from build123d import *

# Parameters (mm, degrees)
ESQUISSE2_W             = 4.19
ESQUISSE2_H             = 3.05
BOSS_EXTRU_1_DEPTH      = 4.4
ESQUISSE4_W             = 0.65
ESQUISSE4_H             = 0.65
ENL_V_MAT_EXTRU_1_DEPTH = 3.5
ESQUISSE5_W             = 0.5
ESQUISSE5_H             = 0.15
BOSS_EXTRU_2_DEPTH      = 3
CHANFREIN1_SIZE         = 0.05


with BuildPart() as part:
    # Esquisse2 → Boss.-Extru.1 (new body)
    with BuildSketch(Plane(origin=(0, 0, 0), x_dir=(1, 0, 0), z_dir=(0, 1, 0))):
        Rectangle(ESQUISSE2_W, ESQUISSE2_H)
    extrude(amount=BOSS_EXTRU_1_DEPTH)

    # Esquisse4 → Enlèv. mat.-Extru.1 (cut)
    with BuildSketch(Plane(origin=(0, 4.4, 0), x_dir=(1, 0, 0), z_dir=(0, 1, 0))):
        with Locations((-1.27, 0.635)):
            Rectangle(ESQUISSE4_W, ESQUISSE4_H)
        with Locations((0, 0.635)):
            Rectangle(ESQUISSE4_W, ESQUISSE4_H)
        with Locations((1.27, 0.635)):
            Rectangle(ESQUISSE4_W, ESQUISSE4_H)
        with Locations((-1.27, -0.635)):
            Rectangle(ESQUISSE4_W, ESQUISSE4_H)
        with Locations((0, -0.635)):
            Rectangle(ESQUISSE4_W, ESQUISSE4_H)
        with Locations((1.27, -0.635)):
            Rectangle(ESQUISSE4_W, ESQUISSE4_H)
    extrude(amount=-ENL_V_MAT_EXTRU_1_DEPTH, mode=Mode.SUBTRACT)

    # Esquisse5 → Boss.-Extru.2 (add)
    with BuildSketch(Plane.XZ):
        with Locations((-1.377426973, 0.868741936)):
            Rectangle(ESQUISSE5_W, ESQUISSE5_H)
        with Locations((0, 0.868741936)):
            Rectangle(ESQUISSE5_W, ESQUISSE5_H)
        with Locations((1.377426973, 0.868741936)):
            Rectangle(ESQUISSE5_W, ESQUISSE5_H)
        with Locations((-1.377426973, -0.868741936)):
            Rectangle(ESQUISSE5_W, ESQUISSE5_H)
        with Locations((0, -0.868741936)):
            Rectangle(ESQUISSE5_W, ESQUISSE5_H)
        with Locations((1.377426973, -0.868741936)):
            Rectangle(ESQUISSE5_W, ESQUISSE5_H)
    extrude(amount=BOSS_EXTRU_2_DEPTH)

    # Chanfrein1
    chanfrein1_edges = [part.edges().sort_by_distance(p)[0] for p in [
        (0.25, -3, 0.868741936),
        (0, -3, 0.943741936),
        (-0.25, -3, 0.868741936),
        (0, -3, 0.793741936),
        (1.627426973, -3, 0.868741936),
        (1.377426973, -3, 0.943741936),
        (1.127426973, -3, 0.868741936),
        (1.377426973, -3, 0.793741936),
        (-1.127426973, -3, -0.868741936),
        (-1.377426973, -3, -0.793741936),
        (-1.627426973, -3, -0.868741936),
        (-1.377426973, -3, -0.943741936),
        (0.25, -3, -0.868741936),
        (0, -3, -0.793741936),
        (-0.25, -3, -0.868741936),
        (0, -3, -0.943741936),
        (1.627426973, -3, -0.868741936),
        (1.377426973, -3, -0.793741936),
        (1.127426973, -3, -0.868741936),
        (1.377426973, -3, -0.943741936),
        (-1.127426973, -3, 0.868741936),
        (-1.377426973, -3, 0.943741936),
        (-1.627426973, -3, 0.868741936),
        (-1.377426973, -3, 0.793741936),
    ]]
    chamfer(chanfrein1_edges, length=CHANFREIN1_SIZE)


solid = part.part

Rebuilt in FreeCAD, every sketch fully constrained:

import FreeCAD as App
import Part
import Sketcher


def edges_at(feature, points):
    """Names of the edges that pass closest to the given points."""
    edges = feature.Shape.Edges
    near = lambda p: min(range(len(edges)), key=lambda i: edges[i].distToShape(Part.Vertex(*p))[0])
    return sorted({f"Edge{near(p) + 1}" for p in points})

doc = App.newDocument("Part")
body = doc.addObject("PartDesign::Body", "Body")

# Sketch on XZ plane
sketch1 = body.newObject("Sketcher::SketchObject", "Sketch")
sketch1.AttachmentSupport = (doc.getObject("XZ_Plane"), [""])
sketch1.MapMode = "FlatFace"
sketch1.addGeometry([
    Part.LineSegment(App.Vector(-2.1, -1.5, 0), App.Vector(-2.1, 1.5, 0)),
    Part.LineSegment(App.Vector(-2.1, 1.5, 0), App.Vector(2.1, 1.5, 0)),
    Part.LineSegment(App.Vector(2.1, 1.5, 0), App.Vector(2.1, -1.5, 0)),
    Part.LineSegment(App.Vector(2.1, -1.5, 0), App.Vector(-2.1, -1.5, 0)),
], False)
sketch1.addConstraint([
    Sketcher.Constraint("Coincident", 0, 2, 1, 1),
    Sketcher.Constraint("Coincident", 1, 2, 2, 1),
    Sketcher.Constraint("Coincident", 2, 2, 3, 1),
    Sketcher.Constraint("Coincident", 3, 2, 0, 1),
    Sketcher.Constraint("Vertical", 0),
    Sketcher.Constraint("Horizontal", 1),
    Sketcher.Constraint("Vertical", 2),
    Sketcher.Constraint("Horizontal", 3),
    Sketcher.Constraint("Symmetric", 0, 2, 2, 2, -1, 1),
    Sketcher.Constraint("DistanceX", 1, 1, 1, 2, 4.19),
    Sketcher.Constraint("DistanceY", 0, 1, 0, 2, 3.05),
])
pad1 = body.newObject("PartDesign::Pad", "Pad")
pad1.Profile = sketch1
pad1.Length = 4.4
pad1.Reversed = True

# Sketch on XZ plane
sketch2 = body.newObject("Sketcher::SketchObject", "Sketch001")
sketch2.AttachmentSupport = (doc.getObject("XZ_Plane"), [""])
sketch2.MapMode = "FlatFace"
sketch2.AttachmentOffset = App.Placement(App.Vector(0, 0, -4.4), App.Rotation())
sketch2.addGeometry([
    Part.LineSegment(App.Vector(-1.6, -1, 0), App.Vector(-1.6, -0.3, 0)),  # 0
    Part.LineSegment(App.Vector(-1.6, -0.3, 0), App.Vector(-0.9, -0.3, 0)),  # 1
    Part.LineSegment(App.Vector(-0.9, -0.3, 0), App.Vector(-0.9, -1, 0)),  # 2
    Part.LineSegment(App.Vector(-0.9, -1, 0), App.Vector(-1.6, -1, 0)),  # 3
    Part.LineSegment(App.Vector(-0.3, -1, 0), App.Vector(-0.3, -0.3, 0)),  # 4
    Part.LineSegment(App.Vector(-0.3, -0.3, 0), App.Vector(0.3, -0.3, 0)),  # 5
    Part.LineSegment(App.Vector(0.3, -0.3, 0), App.Vector(0.3, -1, 0)),  # 6
    Part.LineSegment(App.Vector(0.3, -1, 0), App.Vector(-0.3, -1, 0)),  # 7
    Part.LineSegment(App.Vector(0.9, -1, 0), App.Vector(0.9, -0.3, 0)),  # 8
    Part.LineSegment(App.Vector(0.9, -0.3, 0), App.Vector(1.6, -0.3, 0)),  # 9
    Part.LineSegment(App.Vector(1.6, -0.3, 0), App.Vector(1.6, -1, 0)),  # 10
    Part.LineSegment(App.Vector(1.6, -1, 0), App.Vector(0.9, -1, 0)),  # 11
    Part.LineSegment(App.Vector(-1.6, 0.3, 0), App.Vector(-1.6, 1, 0)),  # 12
    Part.LineSegment(App.Vector(-1.6, 1, 0), App.Vector(-0.9, 1, 0)),  # 13
    Part.LineSegment(App.Vector(-0.9, 1, 0), App.Vector(-0.9, 0.3, 0)),  # 14
    Part.LineSegment(App.Vector(-0.9, 0.3, 0), App.Vector(-1.6, 0.3, 0)),  # 15
    Part.LineSegment(App.Vector(-0.3, 0.3, 0), App.Vector(-0.3, 1, 0)),  # 16
    Part.LineSegment(App.Vector(-0.3, 1, 0), App.Vector(0.3, 1, 0)),  # 17
    Part.LineSegment(App.Vector(0.3, 1, 0), App.Vector(0.3, 0.3, 0)),  # 18
    Part.LineSegment(App.Vector(0.3, 0.3, 0), App.Vector(-0.3, 0.3, 0)),  # 19
    Part.LineSegment(App.Vector(0.9, 0.3, 0), App.Vector(0.9, 1, 0)),  # 20
    Part.LineSegment(App.Vector(0.9, 1, 0), App.Vector(1.6, 1, 0)),  # 21
    Part.LineSegment(App.Vector(1.6, 1, 0), App.Vector(1.6, 0.3, 0)),  # 22
    Part.LineSegment(App.Vector(1.6, 0.3, 0), App.Vector(0.9, 0.3, 0)),  # 23
], False)
sketch2.addConstraint([
    Sketcher.Constraint("Coincident", 0, 2, 1, 1),
    Sketcher.Constraint("Coincident", 1, 2, 2, 1),
    Sketcher.Constraint("Coincident", 2, 2, 3, 1),
    Sketcher.Constraint("Coincident", 3, 2, 0, 1),
    Sketcher.Constraint("Coincident", 4, 2, 5, 1),
    Sketcher.Constraint("Coincident", 5, 2, 6, 1),
    Sketcher.Constraint("Coincident", 6, 2, 7, 1),
    Sketcher.Constraint("Coincident", 7, 2, 4, 1),
    Sketcher.Constraint("Coincident", 8, 2, 9, 1),
    Sketcher.Constraint("Coincident", 9, 2, 10, 1),
    Sketcher.Constraint("Coincident", 10, 2, 11, 1),
    Sketcher.Constraint("Coincident", 11, 2, 8, 1),
    Sketcher.Constraint("Coincident", 12, 2, 13, 1),
    Sketcher.Constraint("Coincident", 13, 2, 14, 1),
    Sketcher.Constraint("Coincident", 14, 2, 15, 1),
    Sketcher.Constraint("Coincident", 15, 2, 12, 1),
    Sketcher.Constraint("Coincident", 16, 2, 17, 1),
    Sketcher.Constraint("Coincident", 17, 2, 18, 1),
    Sketcher.Constraint("Coincident", 18, 2, 19, 1),
    Sketcher.Constraint("Coincident", 19, 2, 16, 1),
    Sketcher.Constraint("Coincident", 20, 2, 21, 1),
    Sketcher.Constraint("Coincident", 21, 2, 22, 1),
    Sketcher.Constraint("Coincident", 22, 2, 23, 1),
    Sketcher.Constraint("Coincident", 23, 2, 20, 1),
    Sketcher.Constraint("Vertical", 0),
    Sketcher.Constraint("Horizontal", 1),
    Sketcher.Constraint("Vertical", 2),
    Sketcher.Constraint("Horizontal", 3),
    Sketcher.Constraint("Vertical", 4),
    Sketcher.Constraint("Horizontal", 5),
    Sketcher.Constraint("Vertical", 6),
    Sketcher.Constraint("Horizontal", 7),
    Sketcher.Constraint("Vertical", 8),
    Sketcher.Constraint("Horizontal", 9),
    Sketcher.Constraint("Vertical", 10),
    Sketcher.Constraint("Horizontal", 11),
    Sketcher.Constraint("Vertical", 12),
    Sketcher.Constraint("Horizontal", 13),
    Sketcher.Constraint("Vertical", 14),
    Sketcher.Constraint("Horizontal", 15),
    Sketcher.Constraint("Vertical", 16),
    Sketcher.Constraint("Horizontal", 17),
    Sketcher.Constraint("Vertical", 18),
    Sketcher.Constraint("Horizontal", 19),
    Sketcher.Constraint("Vertical", 20),
    Sketcher.Constraint("Horizontal", 21),
    Sketcher.Constraint("Vertical", 22),
    Sketcher.Constraint("Horizontal", 23),
    Sketcher.Constraint("Symmetric", 10, 2, 12, 2, -1, 1),
    Sketcher.Constraint("Symmetric", 8, 2, 14, 2, -1, 1),
    Sketcher.Constraint("Symmetric", 6, 2, 16, 2, -1, 1),
    Sketcher.Constraint("Symmetric", 4, 2, 18, 2, -1, 1),
    Sketcher.Constraint("Symmetric", 2, 2, 20, 2, -1, 1),
    Sketcher.Constraint("Symmetric", 0, 2, 22, 2, -1, 1),
    Sketcher.Constraint("Symmetric", 1, 2, 8, 2, -2),
    Sketcher.Constraint("Symmetric", 3, 2, 10, 2, -2),
    Sketcher.Constraint("Horizontal", 1, 2, 4, 2),
    Sketcher.Constraint("Horizontal", 3, 2, 6, 2),
    Sketcher.Constraint("Vertical", 7, 2, 16, 2),
    Sketcher.Constraint("Equal", 3, 5),
    Sketcher.Constraint("Equal", 23, 0),
    Sketcher.Constraint("DistanceX", 1, 1, 1, 2, 0.65),
    Sketcher.Constraint("DistanceY", 0, 2, -1, 1, 0.31),
    Sketcher.Constraint("DistanceX", 1, 2, 4, 2, 0.62),
])
pocket1 = body.newObject("PartDesign::Pocket", "Pocket")
pocket1.Profile = sketch2
pocket1.Length = 3.5
pocket1.Reversed = True

# Sketch on XZ plane
sketch3 = body.newObject("Sketcher::SketchObject", "Sketch002")
sketch3.AttachmentSupport = (doc.getObject("XZ_Plane"), [""])
sketch3.MapMode = "FlatFace"
sketch3.addGeometry([
    Part.LineSegment(App.Vector(-1.63, 0.94, 0), App.Vector(-1.63, 0.79, 0)),  # 0
    Part.LineSegment(App.Vector(-1.63, 0.79, 0), App.Vector(-1.13, 0.79, 0)),  # 1
    Part.LineSegment(App.Vector(-1.13, 0.79, 0), App.Vector(-1.13, 0.94, 0)),  # 2
    Part.LineSegment(App.Vector(-1.13, 0.94, 0), App.Vector(-1.63, 0.94, 0)),  # 3
    Part.LineSegment(App.Vector(-0.25, 0.94, 0), App.Vector(-0.25, 0.79, 0)),  # 4
    Part.LineSegment(App.Vector(-0.25, 0.79, 0), App.Vector(0.25, 0.79, 0)),  # 5
    Part.LineSegment(App.Vector(0.25, 0.79, 0), App.Vector(0.25, 0.94, 0)),  # 6
    Part.LineSegment(App.Vector(0.25, 0.94, 0), App.Vector(-0.25, 0.94, 0)),  # 7
    Part.LineSegment(App.Vector(1.13, 0.94, 0), App.Vector(1.13, 0.79, 0)),  # 8
    Part.LineSegment(App.Vector(1.13, 0.79, 0), App.Vector(1.63, 0.79, 0)),  # 9
    Part.LineSegment(App.Vector(1.63, 0.79, 0), App.Vector(1.63, 0.94, 0)),  # 10
    Part.LineSegment(App.Vector(1.63, 0.94, 0), App.Vector(1.13, 0.94, 0)),  # 11
    Part.LineSegment(App.Vector(-1.63, -0.79, 0), App.Vector(-1.63, -0.94, 0)),  # 12
    Part.LineSegment(App.Vector(-1.63, -0.94, 0), App.Vector(-1.13, -0.94, 0)),  # 13
    Part.LineSegment(App.Vector(-1.13, -0.94, 0), App.Vector(-1.13, -0.79, 0)),  # 14
    Part.LineSegment(App.Vector(-1.13, -0.79, 0), App.Vector(-1.63, -0.79, 0)),  # 15
    Part.LineSegment(App.Vector(-0.25, -0.79, 0), App.Vector(-0.25, -0.94, 0)),  # 16
    Part.LineSegment(App.Vector(-0.25, -0.94, 0), App.Vector(0.25, -0.94, 0)),  # 17
    Part.LineSegment(App.Vector(0.25, -0.94, 0), App.Vector(0.25, -0.79, 0)),  # 18
    Part.LineSegment(App.Vector(0.25, -0.79, 0), App.Vector(-0.25, -0.79, 0)),  # 19
    Part.LineSegment(App.Vector(1.13, -0.79, 0), App.Vector(1.13, -0.94, 0)),  # 20
    Part.LineSegment(App.Vector(1.13, -0.94, 0), App.Vector(1.63, -0.94, 0)),  # 21
    Part.LineSegment(App.Vector(1.63, -0.94, 0), App.Vector(1.63, -0.79, 0)),  # 22
    Part.LineSegment(App.Vector(1.63, -0.79, 0), App.Vector(1.13, -0.79, 0)),  # 23
], False)
sketch3.addConstraint([
    Sketcher.Constraint("Coincident", 0, 2, 1, 1),
    Sketcher.Constraint("Coincident", 1, 2, 2, 1),
    Sketcher.Constraint("Coincident", 2, 2, 3, 1),
    Sketcher.Constraint("Coincident", 3, 2, 0, 1),
    Sketcher.Constraint("Coincident", 4, 2, 5, 1),
    Sketcher.Constraint("Coincident", 5, 2, 6, 1),
    Sketcher.Constraint("Coincident", 6, 2, 7, 1),
    Sketcher.Constraint("Coincident", 7, 2, 4, 1),
    Sketcher.Constraint("Coincident", 8, 2, 9, 1),
    Sketcher.Constraint("Coincident", 9, 2, 10, 1),
    Sketcher.Constraint("Coincident", 10, 2, 11, 1),
    Sketcher.Constraint("Coincident", 11, 2, 8, 1),
    Sketcher.Constraint("Coincident", 12, 2, 13, 1),
    Sketcher.Constraint("Coincident", 13, 2, 14, 1),
    Sketcher.Constraint("Coincident", 14, 2, 15, 1),
    Sketcher.Constraint("Coincident", 15, 2, 12, 1),
    Sketcher.Constraint("Coincident", 16, 2, 17, 1),
    Sketcher.Constraint("Coincident", 17, 2, 18, 1),
    Sketcher.Constraint("Coincident", 18, 2, 19, 1),
    Sketcher.Constraint("Coincident", 19, 2, 16, 1),
    Sketcher.Constraint("Coincident", 20, 2, 21, 1),
    Sketcher.Constraint("Coincident", 21, 2, 22, 1),
    Sketcher.Constraint("Coincident", 22, 2, 23, 1),
    Sketcher.Constraint("Coincident", 23, 2, 20, 1),
    Sketcher.Constraint("Vertical", 0),
    Sketcher.Constraint("Horizontal", 1),
    Sketcher.Constraint("Vertical", 2),
    Sketcher.Constraint("Horizontal", 3),
    Sketcher.Constraint("Vertical", 4),
    Sketcher.Constraint("Horizontal", 5),
    Sketcher.Constraint("Vertical", 6),
    Sketcher.Constraint("Horizontal", 7),
    Sketcher.Constraint("Vertical", 8),
    Sketcher.Constraint("Horizontal", 9),
    Sketcher.Constraint("Vertical", 10),
    Sketcher.Constraint("Horizontal", 11),
    Sketcher.Constraint("Vertical", 12),
    Sketcher.Constraint("Horizontal", 13),
    Sketcher.Constraint("Vertical", 14),
    Sketcher.Constraint("Horizontal", 15),
    Sketcher.Constraint("Vertical", 16),
    Sketcher.Constraint("Horizontal", 17),
    Sketcher.Constraint("Vertical", 18),
    Sketcher.Constraint("Horizontal", 19),
    Sketcher.Constraint("Vertical", 20),
    Sketcher.Constraint("Horizontal", 21),
    Sketcher.Constraint("Vertical", 22),
    Sketcher.Constraint("Horizontal", 23),
    Sketcher.Constraint("Symmetric", 10, 2, 12, 2, -1, 1),
    Sketcher.Constraint("Symmetric", 8, 2, 14, 2, -1, 1),
    Sketcher.Constraint("Symmetric", 6, 2, 16, 2, -1, 1),
    Sketcher.Constraint("Symmetric", 4, 2, 18, 2, -1, 1),
    Sketcher.Constraint("Symmetric", 2, 2, 20, 2, -1, 1),
    Sketcher.Constraint("Symmetric", 0, 2, 22, 2, -1, 1),
    Sketcher.Constraint("Symmetric", 1, 2, 8, 2, -2),
    Sketcher.Constraint("Symmetric", 3, 2, 10, 2, -2),
    Sketcher.Constraint("Horizontal", 1, 2, 4, 2),
    Sketcher.Constraint("Horizontal", 3, 2, 6, 2),
    Sketcher.Constraint("Vertical", 7, 2, 16, 2),
    Sketcher.Constraint("Equal", 3, 5),
    Sketcher.Constraint("DistanceX", 1, 1, 1, 2, 0.5),
    Sketcher.Constraint("DistanceY", 0, 2, 0, 1, 0.15),
    Sketcher.Constraint("DistanceY", -1, 1, 0, 2, 0.793742),
    Sketcher.Constraint("DistanceX", 0, 2, -1, 1, 1.627427),
])
pad2 = body.newObject("PartDesign::Pad", "Pad001")
pad2.Profile = sketch3
pad2.Length = 3
doc.recompute()

chamfer = body.newObject("PartDesign::Chamfer", "Chamfer")
chamfer.Base = (pad2, edges_at(pad2, [
    (0.25, -3, 0.869),
    (0, -3, 0.944),
    (-0.25, -3, 0.869),
    (0, -3, 0.794),
    (1.627, -3, 0.869),
    (1.377, -3, 0.944),
    (1.127, -3, 0.869),
    (1.377, -3, 0.794),
    (-1.127, -3, -0.869),
    (-1.377, -3, -0.794),
    (-1.627, -3, -0.869),
    (-1.377, -3, -0.944),
    (0.25, -3, -0.869),
    (0, -3, -0.794),
    (-0.25, -3, -0.869),
    (0, -3, -0.944),
    (1.627, -3, -0.869),
    (1.377, -3, -0.794),
    (1.127, -3, -0.869),
    (1.377, -3, -0.944),
    (-1.127, -3, 0.869),
    (-1.377, -3, 0.944),
    (-1.627, -3, 0.869),
    (-1.377, -3, 0.794),
]))
chamfer.Size = 0.05

doc.recompute()
